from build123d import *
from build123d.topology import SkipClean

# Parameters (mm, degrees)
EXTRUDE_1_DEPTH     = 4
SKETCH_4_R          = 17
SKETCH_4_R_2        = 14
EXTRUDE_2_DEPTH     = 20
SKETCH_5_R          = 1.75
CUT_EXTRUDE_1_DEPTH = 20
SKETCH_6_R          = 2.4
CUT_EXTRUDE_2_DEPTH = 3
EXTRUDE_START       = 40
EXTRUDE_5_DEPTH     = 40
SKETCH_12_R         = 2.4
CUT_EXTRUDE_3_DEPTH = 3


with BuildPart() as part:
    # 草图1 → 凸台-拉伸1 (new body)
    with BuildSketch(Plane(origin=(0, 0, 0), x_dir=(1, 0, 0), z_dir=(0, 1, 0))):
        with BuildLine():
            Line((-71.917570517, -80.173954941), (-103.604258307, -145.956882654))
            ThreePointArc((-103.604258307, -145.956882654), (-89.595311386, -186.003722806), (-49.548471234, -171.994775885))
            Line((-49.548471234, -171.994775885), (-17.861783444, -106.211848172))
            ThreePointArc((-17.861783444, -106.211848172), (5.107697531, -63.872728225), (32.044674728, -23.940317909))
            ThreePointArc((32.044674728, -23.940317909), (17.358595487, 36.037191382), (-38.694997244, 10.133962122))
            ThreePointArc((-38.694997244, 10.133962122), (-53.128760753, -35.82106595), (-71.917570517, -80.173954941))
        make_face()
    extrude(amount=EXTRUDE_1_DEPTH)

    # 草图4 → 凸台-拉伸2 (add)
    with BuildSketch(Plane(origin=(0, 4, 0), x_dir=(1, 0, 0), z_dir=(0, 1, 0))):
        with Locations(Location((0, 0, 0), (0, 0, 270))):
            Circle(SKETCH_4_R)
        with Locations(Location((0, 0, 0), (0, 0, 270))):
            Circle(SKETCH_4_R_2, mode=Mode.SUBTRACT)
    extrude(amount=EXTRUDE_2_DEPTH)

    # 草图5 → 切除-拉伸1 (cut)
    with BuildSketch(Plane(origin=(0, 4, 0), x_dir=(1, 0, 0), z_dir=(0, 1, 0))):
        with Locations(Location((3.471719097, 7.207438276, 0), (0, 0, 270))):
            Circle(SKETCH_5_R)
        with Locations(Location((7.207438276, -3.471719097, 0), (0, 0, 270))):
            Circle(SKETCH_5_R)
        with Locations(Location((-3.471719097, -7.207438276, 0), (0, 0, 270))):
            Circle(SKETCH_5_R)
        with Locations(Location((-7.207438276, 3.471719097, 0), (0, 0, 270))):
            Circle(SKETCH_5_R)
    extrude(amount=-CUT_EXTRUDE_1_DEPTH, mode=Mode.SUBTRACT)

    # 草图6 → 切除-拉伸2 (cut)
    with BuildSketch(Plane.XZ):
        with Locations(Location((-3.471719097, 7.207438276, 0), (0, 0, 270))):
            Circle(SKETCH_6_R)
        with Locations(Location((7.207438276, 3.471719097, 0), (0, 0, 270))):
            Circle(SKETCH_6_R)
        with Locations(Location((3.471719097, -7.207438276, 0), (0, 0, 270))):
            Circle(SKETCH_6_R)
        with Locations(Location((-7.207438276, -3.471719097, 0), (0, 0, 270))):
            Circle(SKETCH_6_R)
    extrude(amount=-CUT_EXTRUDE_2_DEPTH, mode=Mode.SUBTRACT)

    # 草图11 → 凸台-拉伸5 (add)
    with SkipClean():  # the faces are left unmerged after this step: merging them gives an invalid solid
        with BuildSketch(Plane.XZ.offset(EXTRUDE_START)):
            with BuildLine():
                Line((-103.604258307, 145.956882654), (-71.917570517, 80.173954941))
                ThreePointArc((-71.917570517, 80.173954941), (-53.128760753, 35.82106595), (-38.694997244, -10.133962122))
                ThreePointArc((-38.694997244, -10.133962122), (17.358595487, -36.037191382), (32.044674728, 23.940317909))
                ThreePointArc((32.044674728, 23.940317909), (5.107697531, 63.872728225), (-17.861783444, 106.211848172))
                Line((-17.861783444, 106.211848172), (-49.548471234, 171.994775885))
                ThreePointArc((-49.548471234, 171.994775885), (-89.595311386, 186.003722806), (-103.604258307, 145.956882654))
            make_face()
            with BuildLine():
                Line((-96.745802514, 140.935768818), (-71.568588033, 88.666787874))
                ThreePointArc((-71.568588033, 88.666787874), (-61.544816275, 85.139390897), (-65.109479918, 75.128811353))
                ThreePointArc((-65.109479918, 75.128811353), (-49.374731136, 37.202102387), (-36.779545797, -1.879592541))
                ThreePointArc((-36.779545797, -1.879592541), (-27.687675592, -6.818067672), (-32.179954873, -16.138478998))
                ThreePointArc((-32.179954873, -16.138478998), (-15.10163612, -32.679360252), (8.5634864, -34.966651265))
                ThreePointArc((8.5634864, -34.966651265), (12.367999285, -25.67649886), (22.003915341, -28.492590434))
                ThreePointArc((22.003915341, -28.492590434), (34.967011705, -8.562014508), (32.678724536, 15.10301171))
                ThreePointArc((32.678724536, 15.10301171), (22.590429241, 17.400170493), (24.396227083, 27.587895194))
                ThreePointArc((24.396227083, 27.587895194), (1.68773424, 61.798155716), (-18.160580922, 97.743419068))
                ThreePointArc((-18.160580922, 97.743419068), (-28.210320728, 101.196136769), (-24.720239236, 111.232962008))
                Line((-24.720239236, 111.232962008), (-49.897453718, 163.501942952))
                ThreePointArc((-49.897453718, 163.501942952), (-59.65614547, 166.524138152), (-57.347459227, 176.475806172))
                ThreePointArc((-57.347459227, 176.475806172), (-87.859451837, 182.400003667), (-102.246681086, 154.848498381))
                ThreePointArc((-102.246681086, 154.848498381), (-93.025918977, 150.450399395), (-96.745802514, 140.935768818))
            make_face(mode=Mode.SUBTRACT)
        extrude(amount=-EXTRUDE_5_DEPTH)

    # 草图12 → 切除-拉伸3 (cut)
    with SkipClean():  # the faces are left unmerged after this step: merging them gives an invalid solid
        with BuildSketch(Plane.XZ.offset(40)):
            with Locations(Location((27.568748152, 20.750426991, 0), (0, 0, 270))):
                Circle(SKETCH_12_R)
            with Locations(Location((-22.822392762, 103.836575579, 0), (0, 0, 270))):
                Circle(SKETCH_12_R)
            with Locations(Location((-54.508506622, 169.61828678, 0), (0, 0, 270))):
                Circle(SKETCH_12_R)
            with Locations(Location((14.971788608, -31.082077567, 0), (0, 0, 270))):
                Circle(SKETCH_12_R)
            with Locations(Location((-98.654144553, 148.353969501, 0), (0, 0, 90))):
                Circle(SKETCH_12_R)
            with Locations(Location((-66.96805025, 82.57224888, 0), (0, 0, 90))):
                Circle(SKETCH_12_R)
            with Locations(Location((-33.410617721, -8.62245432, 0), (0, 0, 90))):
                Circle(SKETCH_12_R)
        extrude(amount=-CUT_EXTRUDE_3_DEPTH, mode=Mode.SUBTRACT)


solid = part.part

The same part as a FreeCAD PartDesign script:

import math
import FreeCAD as App
import Part
import Sketcher
from FreeCAD import Vector
Q = App.Units.Quantity

doc = App.newDocument("Part")
body = doc.addObject("PartDesign::Body", "Body")

sketch1 = body.newObject("Sketcher::SketchObject", "Sketch")
sketch1.AttachmentSupport = (doc.getObject("XZ_Plane"), [""])
sketch1.MapMode = "FlatFace"
sketch1.addGeometry([
    Part.LineSegment(Vector(-72, 80, 0), Vector(-104, 146, 0)),
    Part.ArcOfCircle(Part.Circle(Vector(-77, 159, 0), Vector(0, 0, 1), 30), math.radians(26), math.radians(206)),
    Part.LineSegment(Vector(-50, 172, 0), Vector(-18, 106, 0)),
    Part.ArcOfCircle(Part.Circle(Vector(433, 323, 0), Vector(0, 0, 1), 500), math.radians(-154.28), math.radians(-143.24)),
    Part.ArcOfCircle(Part.Circle(Vector(0, 0, 0), Vector(0, 0, 1), 40), math.radians(-165), math.radians(37)),
    Part.ArcOfCircle(Part.Circle(Vector(-522, -137, 0), Vector(0, 0, 1), 500), math.radians(14.68), math.radians(25.72)),
], False)
sketch1.addConstraint([
    Sketcher.Constraint("Tangent", 0, 2, 1, 2),
    Sketcher.Constraint("Tangent", 1, 1, 2, 1),
    Sketcher.Constraint("Tangent", 2, 2, 3, 1),
    Sketcher.Constraint("Tangent", 3, 2, 4, 2),
    Sketcher.Constraint("Tangent", 4, 1, 5, 1),
    Sketcher.Constraint("Tangent", 5, 2, 0, 1),
    Sketcher.Constraint("Coincident", 4, 3, -1, 1),
    Sketcher.Constraint("Equal", 3, 5),
    Sketcher.Constraint("Parallel", 0, 2),
    Sketcher.Constraint("Equal", 0, 2),
    Sketcher.Constraint("Radius", 1, Q("30 mm")),
    Sketcher.Constraint("Radius", 3, Q("500 mm")),
    Sketcher.Constraint("Radius", 4, Q("40 mm")),
    Sketcher.Constraint("DistanceX", 5, 3, 1, 3, Q("445.806098 mm")),
    Sketcher.Constraint("Distance", 0, Q("73.016709 mm")),
])
pad1 = body.newObject("PartDesign::Pad", "Pad")
pad1.Profile = sketch1
pad1.Length = 4
pad1.Reversed = True

sketch2 = body.newObject("Sketcher::SketchObject", "Sketch001")
sketch2.AttachmentSupport = (doc.getObject("XZ_Plane"), [""])
sketch2.MapMode = "FlatFace"
sketch2.AttachmentOffset = App.Placement(Vector(0, 0, -4), App.Rotation())
sketch2.addGeometry([
    Part.Circle(Vector(0, 0, 0), Vector(0, 0, 1), 17),
    Part.Circle(Vector(0, 0, 0), Vector(0, 0, 1), 14),
], False)
sketch2.addConstraint([
    Sketcher.Constraint("Coincident", 0, 3, -1, 1),
    Sketcher.Constraint("Coincident", 1, 3, -1, 1),
    Sketcher.Constraint("Diameter", 0, Q("34 mm")),
    Sketcher.Constraint("Diameter", 1, Q("28 mm")),
])
pad2 = body.newObject("PartDesign::Pad", "Pad001")
pad2.Profile = sketch2
pad2.Length = 20
pad2.Reversed = True

sketch3 = body.newObject("Sketcher::SketchObject", "Sketch002")
sketch3.AttachmentSupport = (doc.getObject("XZ_Plane"), [""])
sketch3.MapMode = "FlatFace"
sketch3.AttachmentOffset = App.Placement(Vector(0, 0, -4), App.Rotation())
sketch3.addGeometry([
    Part.Circle(Vector(3.5, -7.2, 0), Vector(0, 0, 1), 1.8),
    Part.Circle(Vector(7.2, 3.5, 0), Vector(0, 0, 1), 1.8),
    Part.Circle(Vector(-3.5, 7.2, 0), Vector(0, 0, 1), 1.8),
    Part.Circle(Vector(-7.2, -3.5, 0), Vector(0, 0, 1), 1.8),
], False)
sketch3.addConstraint([
    Sketcher.Constraint("Equal", 0, 1),
    Sketcher.Constraint("Equal", 1, 2),
    Sketcher.Constraint("Equal", 2, 3),
    Sketcher.Constraint("Symmetric", 0, 3, 2, 3, -1, 1),
    Sketcher.Constraint("Symmetric", 1, 3, 3, 3, -1, 1),
    Sketcher.Constraint("Diameter", 0, Q("3.5 mm")),
    Sketcher.Constraint("DistanceX", -1, 1, 0, 3, Q("3.471719 mm")),
    Sketcher.Constraint("DistanceY", 0, 3, -1, 1, Q("7.207438 mm")),
    Sketcher.Constraint("DistanceX", -1, 1, 1, 3, Q("7.207438 mm")),
    Sketcher.Constraint("DistanceY", -1, 1, 1, 3, Q("3.471719 mm")),
])
pocket1 = body.newObject("PartDesign::Pocket", "Pocket")
pocket1.Profile = sketch3
pocket1.Length = 20
pocket1.Reversed = True

sketch4 = body.newObject("Sketcher::SketchObject", "Sketch003")
sketch4.AttachmentSupport = (doc.getObject("XZ_Plane"), [""])
sketch4.MapMode = "FlatFace"
sketch4.addGeometry([
    Part.Circle(Vector(-3.5, 7.2, 0), Vector(0, 0, 1), 2.4),
    Part.Circle(Vector(7.2, 3.5, 0), Vector(0, 0, 1), 2.4),
    Part.Circle(Vector(3.5, -7.2, 0), Vector(0, 0, 1), 2.4),
    Part.Circle(Vector(-7.2, -3.5, 0), Vector(0, 0, 1), 2.4),
], False)
sketch4.addConstraint([
    Sketcher.Constraint("Equal", 0, 1),
    Sketcher.Constraint("Equal", 1, 2),
    Sketcher.Constraint("Equal", 2, 3),
    Sketcher.Constraint("Symmetric", 0, 3, 2, 3, -1, 1),
    Sketcher.Constraint("Symmetric", 1, 3, 3, 3, -1, 1),
    Sketcher.Constraint("Diameter", 0, Q("4.8 mm")),
    Sketcher.Constraint("DistanceX", 0, 3, -1, 1, Q("3.471719 mm")),
    Sketcher.Constraint("DistanceY", -1, 1, 0, 3, Q("7.207438 mm")),
    Sketcher.Constraint("DistanceX", -1, 1, 1, 3, Q("7.207438 mm")),
    Sketcher.Constraint("DistanceY", -1, 1, 1, 3, Q("3.471719 mm")),
])
pocket2 = body.newObject("PartDesign::Pocket", "Pocket001")
pocket2.Profile = sketch4
pocket2.Length = 3

sketch5 = body.newObject("Sketcher::SketchObject", "Sketch004")
sketch5.AttachmentSupport = (doc.getObject("XZ_Plane"), [""])
sketch5.MapMode = "FlatFace"
sketch5.AttachmentOffset = App.Placement(Vector(0, 0, 40), App.Rotation())
sketch5.addGeometry([
    Part.LineSegment(Vector(-104, 146, 0), Vector(-72, 80, 0)),
    Part.ArcOfCircle(Part.Circle(Vector(-522, -137, 0), Vector(0, 0, 1), 500), math.radians(14.68), math.radians(25.72)),
    Part.ArcOfCircle(Part.Circle(Vector(0, 0, 0), Vector(0, 0, 1), 40), math.radians(-165), math.radians(37)),
    Part.ArcOfCircle(Part.Circle(Vector(433, 323, 0), Vector(0, 0, 1), 500), math.radians(-154.28), math.radians(-143.24)),
    Part.LineSegment(Vector(-18, 106, 0), Vector(-50, 172, 0)),
    Part.ArcOfCircle(Part.Circle(Vector(-77, 159, 0), Vector(0, 0, 1), 30), math.radians(26), math.radians(206)),
    Part.LineSegment(Vector(-72, 89, 0), Vector(-97, 141, 0)),
    Part.ArcOfCircle(Part.Circle(Vector(-100, 148, 0), Vector(0, 0, 1), 8), math.radians(-64), math.radians(107)),
    Part.ArcOfCircle(Part.Circle(Vector(-77, 159, 0), Vector(0, 0, 1), 26), math.radians(42), math.radians(189)),
    Part.ArcOfCircle(Part.Circle(Vector(-53, 170, 0), Vector(0, 0, 1), 8), math.radians(124), math.radians(296)),
    Part.LineSegment(Vector(-50, 164, 0), Vector(-25, 111, 0)),
    Part.ArcOfCircle(Part.Circle(Vector(-21, 104, 0), Vector(0, 0, 1), 8), math.radians(116), math.radians(296)),
    Part.ArcOfCircle(Part.Circle(Vector(433, 323, 0), Vector(0, 0, 1), 504), math.radians(-153.43), math.radians(-144.09)),
    Part.ArcOfCircle(Part.Circle(Vector(29, 22, 0), Vector(0, 0, 1), 8), math.radians(126), math.radians(301)),
    Part.ArcOfCircle(Part.Circle(Vector(0, 0, 0), Vector(0, 0, 1), 36), math.radians(-52), math.radians(25)),
    Part.ArcOfCircle(Part.Circle(Vector(16, -32, 0), Vector(0, 0, 1), 8), math.radians(32), math.radians(200)),
    Part.ArcOfCircle(Part.Circle(Vector(0, 0, 0), Vector(0, 0, 1), 36), math.radians(-153), math.radians(-76)),
    Part.ArcOfCircle(Part.Circle(Vector(-35, -9, 0), Vector(0, 0, 1), 8), math.radians(-69), math.radians(105)),
    Part.ArcOfCircle(Part.Circle(Vector(-522, -137, 0), Vector(0, 0, 1), 504), math.radians(15.53), math.radians(24.87)),
    Part.ArcOfCircle(Part.Circle(Vector(-68, 82, 0), Vector(0, 0, 1), 8), math.radians(-65), math.radians(116)),
], False)
sketch5.addConstraint([
    Sketcher.Constraint("Tangent", 0, 2, 1, 2),
    Sketcher.Constraint("Tangent", 1, 1, 2, 1),
    Sketcher.Constraint("Tangent", 2, 2, 3, 2),
    Sketcher.Constraint("Tangent", 3, 1, 4, 1),
    Sketcher.Constraint("Tangent", 4, 2, 5, 1),
    Sketcher.Constraint("Tangent", 5, 2, 0, 1),
    Sketcher.Constraint("Coincident", 6, 2, 7, 1),
    Sketcher.Constraint("Coincident", 7, 2, 8, 2),
    Sketcher.Constraint("Coincident", 8, 1, 9, 1),
    Sketcher.Constraint("Coincident", 9, 2, 10, 1),
    Sketcher.Constraint("Coincident", 10, 2, 11, 1),
    Sketcher.Constraint("Coincident", 11, 2, 12, 1),
    Sketcher.Constraint("Coincident", 12, 2, 13, 1),
    Sketcher.Constraint("Coincident", 13, 2, 14, 2),
    Sketcher.Constraint("Coincident", 14, 1, 15, 1),
    Sketcher.Constraint("Coincident", 15, 2, 16, 2),
    Sketcher.Constraint("Coincident", 16, 1, 17, 1),
    Sketcher.Constraint("Coincident", 17, 2, 18, 1),
    Sketcher.Constraint("Coincident", 18, 2, 19, 1),
    Sketcher.Constraint("Coincident", 19, 2, 6, 1),
    Sketcher.Constraint("Coincident", 2, 3, -1, 1),
    Sketcher.Constraint("Coincident", 14, 3, -1, 1),
    Sketcher.Constraint("Coincident", 16, 3, -1, 1),
    Sketcher.Constraint("Coincident", 8, 3, 5, 3),
    Sketcher.Constraint("Coincident", 12, 3, 3, 3),
    Sketcher.Constraint("Coincident", 18, 3, 1, 3),
    Sketcher.Constraint("Equal", 1, 3),
    Sketcher.Constraint("Equal", 7, 9),
    Sketcher.Constraint("Equal", 9, 11),
    Sketcher.Constraint("Equal", 11, 13),
    Sketcher.Constraint("Equal", 13, 15),
    Sketcher.Constraint("Equal", 14, 16),
    Sketcher.Constraint("Equal", 15, 17),
    Sketcher.Constraint("Equal", 12, 18),
    Sketcher.Constraint("Equal", 17, 19),
    Sketcher.Constraint("Parallel", 0, 4),
    Sketcher.Constraint("Parallel", 4, 6),
    Sketcher.Constraint("Parallel", 6, 10),
    Sketcher.Constraint("Equal", 0, 4),
    Sketcher.Constraint("Equal", 6, 10),
    Sketcher.Constraint("Radius", 1, Q("500 mm")),
    Sketcher.Constraint("Radius", 2, Q("40 mm")),
    Sketcher.Constraint("Radius", 5, Q("30 mm")),
    Sketcher.Constraint("Radius", 8, Q("26 mm")),
    Sketcher.Constraint("Radius", 12, Q("504 mm")),
    Sketcher.Constraint("Radius", 14, Q("36 mm")),
    Sketcher.Constraint("Radius", 7, Q("7.5 mm")),
    Sketcher.Constraint("DistanceY", -1, 1, 7, 2, Q("154.848498 mm")),
    Sketcher.Constraint("DistanceX", 1, 3, 5, 3, Q("445.806098 mm")),
    Sketcher.Constraint("DistanceX", 9, 3, 3, 3, Q("485.755299 mm")),
    Sketcher.Constraint("DistanceX", 8, 3, 15, 3, Q("92.199101 mm")),
    Sketcher.Constraint("DistanceY", 15, 3, 8, 3, Q("191.409302 mm")),
    Sketcher.Constraint("DistanceY", 19, 3, 9, 3, Q("88.349102 mm")),
    Sketcher.Constraint("DistanceX", 1, 1, 17, 3, Q("3.8695 mm")),
    Sketcher.Constraint("DistanceY", 19, 2, 11, 3, Q("15.809201 mm")),
    Sketcher.Constraint("Distance", 0, Q("73.016709 mm")),
    Sketcher.Constraint("Distance", 6, Q("58.016709 mm")),
    Sketcher.Constraint("DistanceX", 7, 3, -1, 1, Q("100.000539 mm")),
    Sketcher.Constraint("DistanceY", -1, 1, 11, 3, Q("104.475989 mm")),
    Sketcher.Constraint("DistanceX", 19, 3, -1, 1, Q("68.313851 mm")),
    Sketcher.Constraint("DistanceX", 10, 2, -1, 1, Q("24.720239 mm")),
    Sketcher.Constraint("DistanceY", -1, 1, 13, 2, Q("15.103012 mm")),
    Sketcher.Constraint("DistanceY", 16, 1, -1, 1, Q("16.138479 mm")),
    Sketcher.Constraint("DistanceX", 11, 3, 13, 3, Q("50.30571 mm")),
])
pad3 = body.newObject("PartDesign::Pad", "Pad002")
pad3.Profile = sketch5
pad3.Length = 40
pad3.Reversed = True

sketch6 = body.newObject("Sketcher::SketchObject", "Sketch005")
sketch6.AttachmentSupport = (doc.getObject("XZ_Plane"), [""])
sketch6.MapMode = "FlatFace"
sketch6.AttachmentOffset = App.Placement(Vector(0, 0, 40), App.Rotation())
sketch6.addGeometry([
    Part.Circle(Vector(27.6, 20.8, 0), Vector(0, 0, 1), 2.4),
    Part.Circle(Vector(-22.8, 103.8, 0), Vector(0, 0, 1), 2.4),
    Part.Circle(Vector(-54.5, 169.6, 0), Vector(0, 0, 1), 2.4),
    Part.Circle(Vector(15, -31.1, 0), Vector(0, 0, 1), 2.4),
    Part.Circle(Vector(-98.7, 148.4, 0), Vector(0, 0, 1), 2.4),
    Part.Circle(Vector(-67, 82.6, 0), Vector(0, 0, 1), 2.4),
    Part.Circle(Vector(-33.4, -8.6, 0), Vector(0, 0, 1), 2.4),
], False)
sketch6.addConstraint([
    Sketcher.Constraint("Equal", 0, 1),
    Sketcher.Constraint("Equal", 1, 2),
    Sketcher.Constraint("Equal", 2, 3),
    Sketcher.Constraint("Equal", 3, 4),
    Sketcher.Constraint("Equal", 4, 5),
    Sketcher.Constraint("Equal", 5, 6),
    Sketcher.Constraint("Diameter", 0, Q("4.8 mm")),
    Sketcher.Constraint("DistanceX", 5, 3, 0, 3, Q("94.536798 mm")),
    Sketcher.Constraint("DistanceX", -1, 1, 0, 3, Q("27.568748 mm")),
    Sketcher.Constraint("DistanceX", -1, 1, 3, 3, Q("14.971789 mm")),
    Sketcher.Constraint("DistanceY", -1, 1, 4, 3, Q("148.35397 mm")),
    Sketcher.Constraint("DistanceY", -1, 1, 5, 3, Q("82.572249 mm")),
    Sketcher.Constraint("DistanceX", 1, 3, 0, 3, Q("50.391141 mm")),
    Sketcher.Constraint("DistanceY", 0, 3, 1, 3, Q("83.086149 mm")),
    Sketcher.Constraint("DistanceY", 1, 3, 2, 3, Q("65.781711 mm")),
    Sketcher.Constraint("DistanceX", 4, 3, 1, 3, Q("75.831752 mm")),
    Sketcher.Constraint("DistanceY", 0, 3, 5, 3, Q("61.821822 mm")),
    Sketcher.Constraint("DistanceY", 6, 3, 0, 3, Q("29.372881 mm")),
    Sketcher.Constraint("DistanceX", 2, 3, -1, 1, Q("54.508507 mm")),
    Sketcher.Constraint("DistanceY", 3, 3, -1, 1, Q("31.082078 mm")),
    Sketcher.Constraint("DistanceX", 6, 3, -1, 1, Q("33.410618 mm")),
])
pocket3 = body.newObject("PartDesign::Pocket", "Pocket002")
pocket3.Profile = sketch6
pocket3.Length = 3

doc.recompute()
